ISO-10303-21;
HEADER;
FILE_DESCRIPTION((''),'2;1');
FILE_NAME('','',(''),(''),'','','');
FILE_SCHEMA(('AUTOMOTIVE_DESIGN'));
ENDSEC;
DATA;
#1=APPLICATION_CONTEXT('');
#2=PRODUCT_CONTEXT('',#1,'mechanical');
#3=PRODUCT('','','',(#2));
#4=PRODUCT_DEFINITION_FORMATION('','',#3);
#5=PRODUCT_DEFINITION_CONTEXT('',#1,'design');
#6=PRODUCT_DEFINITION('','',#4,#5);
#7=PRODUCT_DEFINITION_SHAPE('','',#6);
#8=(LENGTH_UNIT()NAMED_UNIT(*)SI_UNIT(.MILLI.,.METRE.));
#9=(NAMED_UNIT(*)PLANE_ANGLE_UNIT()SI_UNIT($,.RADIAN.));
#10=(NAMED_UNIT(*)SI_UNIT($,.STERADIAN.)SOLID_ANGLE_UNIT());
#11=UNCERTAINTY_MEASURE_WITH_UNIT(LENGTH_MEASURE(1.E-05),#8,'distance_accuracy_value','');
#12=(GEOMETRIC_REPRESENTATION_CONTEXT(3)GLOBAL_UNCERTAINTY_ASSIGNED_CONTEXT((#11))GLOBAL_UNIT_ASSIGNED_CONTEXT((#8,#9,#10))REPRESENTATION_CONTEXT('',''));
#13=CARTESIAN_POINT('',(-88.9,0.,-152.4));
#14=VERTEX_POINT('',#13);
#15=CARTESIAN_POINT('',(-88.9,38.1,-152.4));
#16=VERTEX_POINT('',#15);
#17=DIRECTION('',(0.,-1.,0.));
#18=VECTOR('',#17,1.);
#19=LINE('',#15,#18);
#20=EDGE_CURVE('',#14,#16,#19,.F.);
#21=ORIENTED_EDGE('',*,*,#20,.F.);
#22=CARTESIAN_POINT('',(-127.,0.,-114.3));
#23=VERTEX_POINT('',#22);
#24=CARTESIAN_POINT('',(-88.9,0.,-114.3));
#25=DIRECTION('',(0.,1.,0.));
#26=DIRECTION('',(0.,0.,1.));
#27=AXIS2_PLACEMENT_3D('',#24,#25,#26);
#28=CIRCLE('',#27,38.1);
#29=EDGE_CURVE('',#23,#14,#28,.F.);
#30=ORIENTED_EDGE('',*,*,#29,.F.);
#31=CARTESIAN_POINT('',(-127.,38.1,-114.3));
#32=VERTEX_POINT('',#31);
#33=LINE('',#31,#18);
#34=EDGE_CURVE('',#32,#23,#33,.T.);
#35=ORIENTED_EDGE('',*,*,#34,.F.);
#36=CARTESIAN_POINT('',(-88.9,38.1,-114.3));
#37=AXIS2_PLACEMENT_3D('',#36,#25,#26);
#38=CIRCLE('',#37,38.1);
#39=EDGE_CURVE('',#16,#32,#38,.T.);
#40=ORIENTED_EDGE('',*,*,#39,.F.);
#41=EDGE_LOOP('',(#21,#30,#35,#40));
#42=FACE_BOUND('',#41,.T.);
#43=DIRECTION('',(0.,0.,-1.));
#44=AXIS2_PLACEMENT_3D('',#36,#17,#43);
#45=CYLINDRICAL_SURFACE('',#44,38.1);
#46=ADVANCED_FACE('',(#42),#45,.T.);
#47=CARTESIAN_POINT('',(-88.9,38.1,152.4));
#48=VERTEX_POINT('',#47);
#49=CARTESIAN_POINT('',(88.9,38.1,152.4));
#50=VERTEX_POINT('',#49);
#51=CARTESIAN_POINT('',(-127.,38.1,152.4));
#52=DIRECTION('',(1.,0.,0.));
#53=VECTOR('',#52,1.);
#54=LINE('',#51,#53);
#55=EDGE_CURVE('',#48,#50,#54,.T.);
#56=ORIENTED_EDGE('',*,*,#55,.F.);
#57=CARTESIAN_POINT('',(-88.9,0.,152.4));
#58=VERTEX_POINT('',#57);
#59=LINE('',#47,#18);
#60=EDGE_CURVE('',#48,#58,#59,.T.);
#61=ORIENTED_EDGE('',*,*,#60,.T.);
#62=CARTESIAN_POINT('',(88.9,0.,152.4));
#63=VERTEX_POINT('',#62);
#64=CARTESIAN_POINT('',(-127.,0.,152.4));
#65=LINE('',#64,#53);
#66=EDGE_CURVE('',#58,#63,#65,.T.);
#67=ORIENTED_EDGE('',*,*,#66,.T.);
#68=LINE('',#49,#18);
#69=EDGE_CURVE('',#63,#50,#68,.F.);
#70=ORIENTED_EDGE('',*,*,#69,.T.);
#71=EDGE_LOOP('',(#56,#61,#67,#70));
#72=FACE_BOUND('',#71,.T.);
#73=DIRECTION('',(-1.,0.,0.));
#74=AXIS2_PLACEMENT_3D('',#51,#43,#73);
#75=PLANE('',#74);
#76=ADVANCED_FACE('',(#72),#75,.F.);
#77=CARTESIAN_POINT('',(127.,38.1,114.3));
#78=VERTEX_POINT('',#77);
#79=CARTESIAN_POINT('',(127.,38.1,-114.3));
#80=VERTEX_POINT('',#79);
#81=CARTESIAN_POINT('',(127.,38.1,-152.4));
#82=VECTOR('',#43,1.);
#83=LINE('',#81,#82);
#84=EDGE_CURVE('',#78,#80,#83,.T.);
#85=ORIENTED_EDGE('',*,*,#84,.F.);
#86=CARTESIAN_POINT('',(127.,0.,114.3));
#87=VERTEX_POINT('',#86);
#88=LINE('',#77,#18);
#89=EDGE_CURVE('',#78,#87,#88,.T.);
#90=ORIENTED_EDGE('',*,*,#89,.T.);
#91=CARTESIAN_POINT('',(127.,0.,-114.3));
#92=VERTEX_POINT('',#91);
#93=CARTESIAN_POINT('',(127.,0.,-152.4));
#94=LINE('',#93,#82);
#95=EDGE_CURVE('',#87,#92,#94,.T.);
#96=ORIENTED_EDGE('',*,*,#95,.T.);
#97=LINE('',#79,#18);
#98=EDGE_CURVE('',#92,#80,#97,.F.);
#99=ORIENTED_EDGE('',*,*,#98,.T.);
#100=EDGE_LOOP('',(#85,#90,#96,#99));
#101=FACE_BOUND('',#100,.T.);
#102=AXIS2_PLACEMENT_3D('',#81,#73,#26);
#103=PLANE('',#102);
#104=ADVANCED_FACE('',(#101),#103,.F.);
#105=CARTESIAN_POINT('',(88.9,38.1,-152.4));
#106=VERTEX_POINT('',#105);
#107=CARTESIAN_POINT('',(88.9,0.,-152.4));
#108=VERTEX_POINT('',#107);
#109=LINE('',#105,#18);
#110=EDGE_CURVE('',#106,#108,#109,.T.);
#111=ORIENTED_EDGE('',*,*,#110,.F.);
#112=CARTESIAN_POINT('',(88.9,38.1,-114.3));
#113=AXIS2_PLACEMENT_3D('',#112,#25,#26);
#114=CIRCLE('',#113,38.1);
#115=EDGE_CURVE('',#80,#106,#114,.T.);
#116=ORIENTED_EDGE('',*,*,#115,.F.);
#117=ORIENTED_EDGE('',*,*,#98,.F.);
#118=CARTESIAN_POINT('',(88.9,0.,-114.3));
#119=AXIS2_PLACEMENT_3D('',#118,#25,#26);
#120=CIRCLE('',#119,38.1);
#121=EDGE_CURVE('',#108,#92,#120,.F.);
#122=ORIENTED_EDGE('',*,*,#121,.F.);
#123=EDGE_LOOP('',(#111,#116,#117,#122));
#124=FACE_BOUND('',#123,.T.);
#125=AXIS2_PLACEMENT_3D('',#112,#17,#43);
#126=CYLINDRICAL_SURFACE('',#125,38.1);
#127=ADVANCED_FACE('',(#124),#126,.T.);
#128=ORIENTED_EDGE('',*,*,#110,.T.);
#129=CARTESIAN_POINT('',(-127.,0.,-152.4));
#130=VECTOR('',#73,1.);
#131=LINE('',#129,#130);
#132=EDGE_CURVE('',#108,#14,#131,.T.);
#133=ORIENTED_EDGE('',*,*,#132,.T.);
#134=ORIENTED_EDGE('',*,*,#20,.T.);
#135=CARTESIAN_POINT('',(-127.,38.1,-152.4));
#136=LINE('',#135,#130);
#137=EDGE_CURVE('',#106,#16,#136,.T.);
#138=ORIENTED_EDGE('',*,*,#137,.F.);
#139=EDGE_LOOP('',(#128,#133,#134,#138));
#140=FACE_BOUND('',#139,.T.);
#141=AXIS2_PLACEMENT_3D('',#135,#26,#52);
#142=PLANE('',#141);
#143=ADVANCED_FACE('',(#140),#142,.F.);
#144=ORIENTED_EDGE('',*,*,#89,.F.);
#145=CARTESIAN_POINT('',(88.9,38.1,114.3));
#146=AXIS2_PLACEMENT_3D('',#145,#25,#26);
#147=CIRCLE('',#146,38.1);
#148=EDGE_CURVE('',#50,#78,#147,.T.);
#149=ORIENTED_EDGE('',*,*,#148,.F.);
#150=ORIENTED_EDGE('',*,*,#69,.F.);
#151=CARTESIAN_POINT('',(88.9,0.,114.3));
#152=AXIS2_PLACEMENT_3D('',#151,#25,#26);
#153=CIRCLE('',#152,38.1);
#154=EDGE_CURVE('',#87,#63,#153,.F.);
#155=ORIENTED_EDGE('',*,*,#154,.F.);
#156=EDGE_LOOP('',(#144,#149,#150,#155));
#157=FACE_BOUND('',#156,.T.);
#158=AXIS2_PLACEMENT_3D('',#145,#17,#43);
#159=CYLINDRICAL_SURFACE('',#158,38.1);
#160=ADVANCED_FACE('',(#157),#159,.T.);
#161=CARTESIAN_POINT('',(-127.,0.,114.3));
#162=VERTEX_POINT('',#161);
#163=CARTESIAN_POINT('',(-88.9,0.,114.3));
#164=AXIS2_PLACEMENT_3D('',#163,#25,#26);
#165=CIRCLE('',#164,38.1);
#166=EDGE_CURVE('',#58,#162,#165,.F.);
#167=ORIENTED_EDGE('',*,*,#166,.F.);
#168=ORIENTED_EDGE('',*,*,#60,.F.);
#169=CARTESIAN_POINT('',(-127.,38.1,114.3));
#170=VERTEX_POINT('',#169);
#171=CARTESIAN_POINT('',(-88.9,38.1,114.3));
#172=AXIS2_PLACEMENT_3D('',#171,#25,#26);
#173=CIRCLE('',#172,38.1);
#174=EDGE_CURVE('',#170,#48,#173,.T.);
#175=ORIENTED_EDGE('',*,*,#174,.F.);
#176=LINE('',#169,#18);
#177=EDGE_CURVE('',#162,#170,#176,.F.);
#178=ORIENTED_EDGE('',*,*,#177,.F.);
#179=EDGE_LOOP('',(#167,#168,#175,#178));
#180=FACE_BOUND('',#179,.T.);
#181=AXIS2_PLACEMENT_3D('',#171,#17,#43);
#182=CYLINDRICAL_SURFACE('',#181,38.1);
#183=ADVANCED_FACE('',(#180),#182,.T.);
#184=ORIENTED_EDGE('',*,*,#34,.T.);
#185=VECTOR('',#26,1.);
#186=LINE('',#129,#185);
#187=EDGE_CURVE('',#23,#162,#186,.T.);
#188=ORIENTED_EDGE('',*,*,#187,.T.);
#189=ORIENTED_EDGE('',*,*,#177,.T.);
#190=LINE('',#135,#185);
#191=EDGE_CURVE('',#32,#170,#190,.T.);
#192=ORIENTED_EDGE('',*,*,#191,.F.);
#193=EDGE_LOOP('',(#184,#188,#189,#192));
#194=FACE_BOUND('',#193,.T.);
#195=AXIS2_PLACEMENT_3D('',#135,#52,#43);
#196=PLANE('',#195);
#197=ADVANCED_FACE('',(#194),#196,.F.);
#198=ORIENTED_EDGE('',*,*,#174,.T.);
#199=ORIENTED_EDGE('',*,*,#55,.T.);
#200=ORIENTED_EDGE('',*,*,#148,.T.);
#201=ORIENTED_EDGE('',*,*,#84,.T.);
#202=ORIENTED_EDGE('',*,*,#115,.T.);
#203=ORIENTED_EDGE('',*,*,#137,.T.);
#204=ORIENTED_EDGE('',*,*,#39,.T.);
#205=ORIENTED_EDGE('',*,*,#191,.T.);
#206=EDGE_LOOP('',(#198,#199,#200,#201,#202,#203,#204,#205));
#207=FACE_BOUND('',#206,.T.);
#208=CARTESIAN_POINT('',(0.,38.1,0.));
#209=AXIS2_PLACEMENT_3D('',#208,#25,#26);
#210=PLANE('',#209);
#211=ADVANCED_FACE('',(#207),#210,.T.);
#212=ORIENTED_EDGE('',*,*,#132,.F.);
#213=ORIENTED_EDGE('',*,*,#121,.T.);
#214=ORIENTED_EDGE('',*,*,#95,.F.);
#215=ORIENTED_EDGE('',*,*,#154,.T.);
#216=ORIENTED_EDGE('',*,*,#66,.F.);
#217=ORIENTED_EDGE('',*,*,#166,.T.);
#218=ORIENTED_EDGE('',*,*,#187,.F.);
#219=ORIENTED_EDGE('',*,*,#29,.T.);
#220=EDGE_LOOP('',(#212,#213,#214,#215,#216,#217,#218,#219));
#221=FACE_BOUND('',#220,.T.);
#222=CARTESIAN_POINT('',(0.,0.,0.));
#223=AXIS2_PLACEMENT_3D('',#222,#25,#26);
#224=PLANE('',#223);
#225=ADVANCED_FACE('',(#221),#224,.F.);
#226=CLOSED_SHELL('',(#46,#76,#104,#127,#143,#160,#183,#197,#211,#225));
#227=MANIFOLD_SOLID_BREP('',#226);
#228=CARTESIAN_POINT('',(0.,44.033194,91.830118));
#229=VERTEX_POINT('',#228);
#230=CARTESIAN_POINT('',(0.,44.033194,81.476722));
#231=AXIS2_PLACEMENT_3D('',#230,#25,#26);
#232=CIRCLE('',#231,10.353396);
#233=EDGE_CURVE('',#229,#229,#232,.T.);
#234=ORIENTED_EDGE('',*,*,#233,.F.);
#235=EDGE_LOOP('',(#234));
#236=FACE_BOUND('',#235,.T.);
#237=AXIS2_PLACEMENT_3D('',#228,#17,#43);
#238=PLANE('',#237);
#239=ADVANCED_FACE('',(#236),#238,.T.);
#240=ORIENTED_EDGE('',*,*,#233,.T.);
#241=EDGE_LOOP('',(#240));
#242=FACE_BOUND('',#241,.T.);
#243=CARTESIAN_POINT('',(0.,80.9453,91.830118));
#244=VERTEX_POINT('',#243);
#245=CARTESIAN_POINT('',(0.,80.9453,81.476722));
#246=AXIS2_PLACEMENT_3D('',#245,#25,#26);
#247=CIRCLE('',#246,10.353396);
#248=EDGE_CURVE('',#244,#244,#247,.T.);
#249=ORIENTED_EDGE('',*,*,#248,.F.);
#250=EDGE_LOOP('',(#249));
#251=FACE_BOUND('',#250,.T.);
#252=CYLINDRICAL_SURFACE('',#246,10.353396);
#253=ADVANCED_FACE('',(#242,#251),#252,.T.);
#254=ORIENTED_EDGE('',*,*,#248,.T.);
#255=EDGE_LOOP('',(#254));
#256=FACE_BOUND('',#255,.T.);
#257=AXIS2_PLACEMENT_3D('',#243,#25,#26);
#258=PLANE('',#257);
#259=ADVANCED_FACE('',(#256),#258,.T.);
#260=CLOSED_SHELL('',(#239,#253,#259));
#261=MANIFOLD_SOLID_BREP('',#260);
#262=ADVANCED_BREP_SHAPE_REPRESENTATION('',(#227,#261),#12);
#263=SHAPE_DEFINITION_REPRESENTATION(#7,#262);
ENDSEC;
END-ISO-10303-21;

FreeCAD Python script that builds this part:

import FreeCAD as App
import Part
import Sketcher

V = App.Vector
Q = App.Units.Quantity


def edges_at(feature, points):
    """Names of the edges that pass closest to the given points."""
    edges = feature.Shape.Edges
    near = lambda p: min(range(len(edges)), key=lambda i: edges[i].distToShape(Part.Vertex(*p))[0])
    return sorted({f"Edge{near(p) + 1}" for p in points})

doc = App.newDocument("Part")
body = doc.addObject("PartDesign::Body", "Body")

# Sketch on XZ plane
sketch1 = body.newObject("Sketcher::SketchObject", "Sketch")
sketch1.AttachmentSupport = (doc.getObject("XZ_Plane"), [""])
sketch1.MapMode = "FlatFace"
sketch1.addGeometry(Part.LineSegment(V(-127, -152.4, 0), V(-127, 152.4, 0)), False)
sketch1.addGeometry(Part.LineSegment(V(-127, 152.4, 0), V(127, 152.4, 0)), False)
sketch1.addGeometry(Part.LineSegment(V(127, 152.4, 0), V(127, -152.4, 0)), False)
sketch1.addGeometry(Part.LineSegment(V(127, -152.4, 0), V(-127, -152.4, 0)), False)
sketch1.addConstraint(Sketcher.Constraint("Coincident", 0, 2, 1, 1))
sketch1.addConstraint(Sketcher.Constraint("Coincident", 1, 2, 2, 1))
sketch1.addConstraint(Sketcher.Constraint("Coincident", 2, 2, 3, 1))
sketch1.addConstraint(Sketcher.Constraint("Coincident", 3, 2, 0, 1))
sketch1.addConstraint(Sketcher.Constraint("Vertical", 0))
sketch1.addConstraint(Sketcher.Constraint("Horizontal", 1))
sketch1.addConstraint(Sketcher.Constraint("Vertical", 2))
sketch1.addConstraint(Sketcher.Constraint("Horizontal", 3))
sketch1.addConstraint(Sketcher.Constraint("Symmetric", 0, 2, 2, 2, -1, 1))
sketch1.addConstraint(Sketcher.Constraint("DistanceX", 1, 1, 1, 2, Q("10 in")))
sketch1.addConstraint(Sketcher.Constraint("DistanceY", 0, 1, 0, 2, Q("12 in")))
pad1 = body.newObject("PartDesign::Pad", "Pad")
pad1.Profile = sketch1
pad1.Length = Q("1.5 in")
pad1.Reversed = True
doc.recompute()

fillet = body.newObject("PartDesign::Fillet", "Fillet")
fillet.Base = (pad1, edges_at(pad1, [
    (-127, 19.05, -152.4),
    (127, 19.05, -152.4),
    (127, 19.05, 152.4),
    (-127, 19.05, 152.4),
]))
fillet.Radius = Q("1.5 in")
body2 = doc.addObject("PartDesign::Body", "Body001")

# Sketch on YZ plane
sketch2 = body2.newObject("Sketcher::SketchObject", "Sketch001")
sketch2.AttachmentSupport = (doc.getObject("YZ_Plane001"), [""])
sketch2.MapMode = "FlatFace"
sketch2.addGeometry(Part.LineSegment(V(80.9453, 91.830118, 0), V(44.033194, 91.830118, 0)), False)
sketch2.addGeometry(Part.LineSegment(V(44.033194, 91.830118, 0), V(44.033194, 81.476722, 0)), False)
sketch2.addGeometry(Part.LineSegment(V(44.033194, 81.476722, 0), V(80.9453, 81.476722, 0)), False)
sketch2.addGeometry(Part.LineSegment(V(80.9453, 81.476722, 0), V(80.9453, 91.830118, 0)), False)
sketch2.addGeometry(Part.LineSegment(V(80.9453, 81.476722, 0), V(44.033194, 81.476722, 0)), True)  # axis
sketch2.addConstraint(Sketcher.Constraint("Coincident", 0, 2, 1, 1))
sketch2.addConstraint(Sketcher.Constraint("Coincident", 1, 2, 2, 1))
sketch2.addConstraint(Sketcher.Constraint("Coincident", 2, 2, 3, 1))
sketch2.addConstraint(Sketcher.Constraint("Coincident", 3, 2, 0, 1))
sketch2.addConstraint(Sketcher.Constraint("Horizontal", 0))
sketch2.addConstraint(Sketcher.Constraint("Vertical", 1))
sketch2.addConstraint(Sketcher.Constraint("Horizontal", 2))
sketch2.addConstraint(Sketcher.Constraint("Vertical", 3))
sketch2.addConstraint(Sketcher.Constraint("Horizontal", 4))
sketch2.addConstraint(Sketcher.Constraint("Coincident", 4, 1, 2, 2))
sketch2.addConstraint(Sketcher.Constraint("Vertical", 0, 2, 4, 2))
sketch2.addConstraint(Sketcher.Constraint("DistanceX", -1, 1, 2, 2, 80.9453))
sketch2.addConstraint(Sketcher.Constraint("DistanceX", 0, 2, 0, 1, 36.912106))
sketch2.addConstraint(Sketcher.Constraint("DistanceY", 1, 2, 1, 1, 10.353396))
sketch2.addConstraint(Sketcher.Constraint("DistanceY", -1, 1, 0, 2, 91.830118))
revolution = body2.newObject("PartDesign::Revolution", "Revolution")
revolution.Profile = sketch2
revolution.ReferenceAxis = (sketch2, ["Axis0"])
revolution.Angle = 360

doc.recompute()
